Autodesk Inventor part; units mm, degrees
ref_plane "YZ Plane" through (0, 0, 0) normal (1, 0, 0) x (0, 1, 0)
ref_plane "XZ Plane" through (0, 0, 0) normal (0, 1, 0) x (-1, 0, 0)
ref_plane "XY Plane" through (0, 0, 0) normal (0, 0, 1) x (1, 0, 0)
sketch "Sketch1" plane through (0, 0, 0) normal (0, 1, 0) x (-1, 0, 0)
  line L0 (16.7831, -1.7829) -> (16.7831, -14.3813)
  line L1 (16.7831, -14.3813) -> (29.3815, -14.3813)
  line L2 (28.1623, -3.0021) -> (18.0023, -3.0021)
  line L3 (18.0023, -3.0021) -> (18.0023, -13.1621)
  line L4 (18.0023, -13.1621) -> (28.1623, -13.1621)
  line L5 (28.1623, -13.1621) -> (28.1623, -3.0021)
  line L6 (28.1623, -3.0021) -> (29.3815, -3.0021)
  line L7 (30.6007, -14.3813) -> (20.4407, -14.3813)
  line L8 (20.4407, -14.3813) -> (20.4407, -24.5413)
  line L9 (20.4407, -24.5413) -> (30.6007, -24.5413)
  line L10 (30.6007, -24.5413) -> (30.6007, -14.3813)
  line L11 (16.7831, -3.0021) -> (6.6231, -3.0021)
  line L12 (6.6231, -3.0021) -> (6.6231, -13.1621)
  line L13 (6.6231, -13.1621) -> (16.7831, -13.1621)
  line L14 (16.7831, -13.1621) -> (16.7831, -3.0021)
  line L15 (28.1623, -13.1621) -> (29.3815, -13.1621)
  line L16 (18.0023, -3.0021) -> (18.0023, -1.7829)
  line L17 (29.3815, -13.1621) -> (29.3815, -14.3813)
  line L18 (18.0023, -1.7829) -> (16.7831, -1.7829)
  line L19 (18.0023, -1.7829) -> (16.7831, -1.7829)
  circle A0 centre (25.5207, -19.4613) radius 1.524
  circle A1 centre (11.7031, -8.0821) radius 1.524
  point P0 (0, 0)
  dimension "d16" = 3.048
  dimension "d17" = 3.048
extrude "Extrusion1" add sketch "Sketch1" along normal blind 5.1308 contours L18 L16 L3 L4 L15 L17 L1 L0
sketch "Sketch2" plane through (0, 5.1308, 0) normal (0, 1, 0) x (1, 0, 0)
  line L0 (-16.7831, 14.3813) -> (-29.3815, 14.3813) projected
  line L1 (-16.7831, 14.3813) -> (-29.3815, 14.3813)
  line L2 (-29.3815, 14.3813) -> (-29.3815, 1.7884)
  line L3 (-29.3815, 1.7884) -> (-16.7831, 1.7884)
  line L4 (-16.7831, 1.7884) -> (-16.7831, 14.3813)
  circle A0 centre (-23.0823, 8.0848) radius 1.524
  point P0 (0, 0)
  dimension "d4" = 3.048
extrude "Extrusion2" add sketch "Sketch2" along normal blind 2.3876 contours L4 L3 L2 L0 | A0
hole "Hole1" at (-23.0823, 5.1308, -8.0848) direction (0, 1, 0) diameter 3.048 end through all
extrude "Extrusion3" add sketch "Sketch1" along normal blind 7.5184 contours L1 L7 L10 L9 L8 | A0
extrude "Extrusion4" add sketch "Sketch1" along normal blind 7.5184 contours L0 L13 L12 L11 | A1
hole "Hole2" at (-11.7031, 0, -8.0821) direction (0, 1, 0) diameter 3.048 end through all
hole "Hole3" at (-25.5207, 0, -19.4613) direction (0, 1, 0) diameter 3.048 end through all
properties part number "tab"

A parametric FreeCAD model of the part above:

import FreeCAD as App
import Part
import Sketcher
Q = App.Units.Quantity

doc = App.newDocument("Part")
params = doc.addObject("Spreadsheet::Sheet", "Params")
for row, (alias, value) in enumerate([
    ("sketch1_width", "0.048 in"),
    ("sketch1_width2", "0.496 in"),
    ("pad1_length", "0.202 in"),
    ("sketch2_width", "0.496 in"),
    ("pad2_length", "0.094 in"),
    ("sketch3_diameter", "0.12 in"),
    ("hole_diameter", "0.12 in"),
    ("sketch4_width", "0.4 in"),
    ("pad3_length", "0.296 in"),
    ("sketch5_width", "0.4 in"),
    ("pad4_length", "0.296 in"),
    ("sketch6_diameter", "0.12 in"),
    ("hole2_diameter", "0.12 in"),
    ("sketch7_diameter", "0.12 in"),
    ("hole3_diameter", "0.12 in"),
], start=1):
    params.set(f"A{row}", alias)
    params.set(f"B{row}", "=" + value)
    params.setAlias(f"B{row}", alias)

body = doc.addObject("PartDesign::Body", "Body")

# Sketch on XZ plane
sketch1 = doc.addObject("Sketcher::SketchObject", "Sketch")
body.addObject(sketch1)
sketch1.AttachmentSupport = (doc.XZ_Plane, [""])
sketch1.MapMode = "FlatFace"
sketch1.addGeometry([
    Part.LineSegment(App.Vector(-18.0023, -1.7829, 0), App.Vector(-16.7831, -1.7829, 0)),  # 0
    Part.LineSegment(App.Vector(-16.7831, -1.7829, 0), App.Vector(-16.7831, -14.3813, 0)),  # 1
    Part.LineSegment(App.Vector(-16.7831, -14.3813, 0), App.Vector(-29.3815, -14.3813, 0)),  # 2
    Part.LineSegment(App.Vector(-29.3815, -14.3813, 0), App.Vector(-29.3815, -13.1621, 0)),  # 3
    Part.LineSegment(App.Vector(-29.3815, -13.1621, 0), App.Vector(-18.0023, -13.1621, 0)),  # 4
    Part.LineSegment(App.Vector(-18.0023, -13.1621, 0), App.Vector(-18.0023, -1.7829, 0)),  # 5
], False)
sketch1.addConstraint([
    Sketcher.Constraint("Coincident", 0, 2, 1, 1),
    Sketcher.Constraint("Coincident", 1, 2, 2, 1),
    Sketcher.Constraint("Coincident", 2, 2, 3, 1),
    Sketcher.Constraint("Coincident", 3, 2, 4, 1),
    Sketcher.Constraint("Coincident", 4, 2, 5, 1),
    Sketcher.Constraint("Coincident", 5, 2, 0, 1),
    Sketcher.Constraint("Horizontal", 0),
    Sketcher.Constraint("Vertical", 1),
    Sketcher.Constraint("Horizontal", 2),
    Sketcher.Constraint("Vertical", 3),
    Sketcher.Constraint("Horizontal", 4),
    Sketcher.Constraint("Vertical", 5),
    Sketcher.Constraint("Equal", 2, 1),
    Sketcher.Constraint("Equal", 0, 3),
    Sketcher.Constraint("DistanceX", 0, 1, 0, 2, Q("0.048 in")),
    Sketcher.Constraint("DistanceX", 2, 2, 2, 1, Q("0.496 in")),
    Sketcher.Constraint("DistanceY", 0, 2, -1, 1, Q("0.0702 in")),
    Sketcher.Constraint("DistanceX", 0, 2, -1, 1, Q("16.783 mm")),
])
sketch1.setExpression("Constraints[14]", "Params.sketch1_width")
sketch1.setExpression("Constraints[15]", "Params.sketch1_width2")
pad1 = doc.addObject("PartDesign::Pad", "Pad")
body.addObject(pad1)
pad1.Profile = sketch1
pad1.setExpression("Length", "Params.pad1_length")
pad1.Reversed = True

# Sketch on XZ plane
sketch2 = doc.addObject("Sketcher::SketchObject", "Sketch001")
body.addObject(sketch2)
sketch2.AttachmentSupport = (doc.XZ_Plane, [""])
sketch2.MapMode = "FlatFace"
sketch2.AttachmentOffset = App.Placement(App.Vector(0, 0, -0.202 * 25.4), App.Rotation())
sketch2.addGeometry([
    Part.LineSegment(App.Vector(-16.7831, -1.7884, 0), App.Vector(-16.7831, -14.3813, 0)),
    Part.LineSegment(App.Vector(-16.7831, -14.3813, 0), App.Vector(-29.3815, -14.3813, 0)),
    Part.LineSegment(App.Vector(-29.3815, -14.3813, 0), App.Vector(-29.3815, -1.7884, 0)),
    Part.LineSegment(App.Vector(-29.3815, -1.7884, 0), App.Vector(-16.7831, -1.7884, 0)),
], False)
sketch2.addConstraint([
    Sketcher.Constraint("Coincident", 0, 2, 1, 1),
    Sketcher.Constraint("Coincident", 1, 2, 2, 1),
    Sketcher.Constraint("Coincident", 2, 2, 3, 1),
    Sketcher.Constraint("Coincident", 3, 2, 0, 1),
    Sketcher.Constraint("Vertical", 0),
    Sketcher.Constraint("Horizontal", 1),
    Sketcher.Constraint("Vertical", 2),
    Sketcher.Constraint("Horizontal", 3),
    Sketcher.Constraint("DistanceX", 1, 2, 1, 1, Q("0.496 in")),
    Sketcher.Constraint("DistanceY", 0, 2, 0, 1, Q("12.593 mm")),
    Sketcher.Constraint("DistanceY", 0, 2, -1, 1, Q("0.5662 in")),
    Sketcher.Constraint("DistanceX", 0, 2, -1, 1, Q("16.783 mm")),
])
sketch2.setExpression("Constraints[8]", "Params.sketch2_width")
pad2 = doc.addObject("PartDesign::Pad", "Pad001")
body.addObject(pad2)
pad2.Profile = sketch2
pad2.setExpression("Length", "Params.pad2_length")
pad2.Reversed = True

# Sketch on XZ plane
sketch3 = doc.addObject("Sketcher::SketchObject", "Sketch002")
body.addObject(sketch3)
sketch3.AttachmentSupport = (doc.XZ_Plane, [""])
sketch3.MapMode = "FlatFace"
sketch3.AttachmentOffset = App.Placement(App.Vector(0, 0, -0.202 * 25.4), App.Rotation())
sketch3.addGeometry(Part.Circle(App.Vector(-23.0823, -8.0848, 0), App.Vector(0, 0, 1), 1.524), False)
sketch3.addConstraint([
    Sketcher.Constraint("Diameter", 0, Q("0.12 in")),
    Sketcher.Constraint("DistanceY", 0, 3, -1, 1, Q("0.3183 in")),
    Sketcher.Constraint("DistanceX", 0, 3, -1, 1, Q("23.0823 mm")),
])
sketch3.setExpression("Constraints[0]", "Params.sketch3_diameter")
doc.recompute()
hole = doc.addObject("PartDesign::Hole", "Hole")
body.addObject(hole)
hole.Profile = sketch3
hole.ThreadType = "None"
hole.setExpression("Diameter", "Params.hole_diameter")
hole.DepthType = "ThroughAll"

# Sketch on XZ plane
sketch4 = doc.addObject("Sketcher::SketchObject", "Sketch003")
body.addObject(sketch4)
sketch4.AttachmentSupport = (doc.XZ_Plane, [""])
sketch4.MapMode = "FlatFace"
sketch4.addGeometry([
    Part.LineSegment(App.Vector(-20.4407, -14.3813, 0), App.Vector(-20.4407, -24.5413, 0)),
    Part.LineSegment(App.Vector(-20.4407, -24.5413, 0), App.Vector(-30.6007, -24.5413, 0)),
    Part.LineSegment(App.Vector(-30.6007, -24.5413, 0), App.Vector(-30.6007, -14.3813, 0)),
    Part.LineSegment(App.Vector(-30.6007, -14.3813, 0), App.Vector(-20.4407, -14.3813, 0)),
], False)
sketch4.addConstraint([
    Sketcher.Constraint("Coincident", 0, 2, 1, 1),
    Sketcher.Constraint("Coincident", 1, 2, 2, 1),
    Sketcher.Constraint("Coincident", 2, 2, 3, 1),
    Sketcher.Constraint("Coincident", 3, 2, 0, 1),
    Sketcher.Constraint("Vertical", 0),
    Sketcher.Constraint("Horizontal", 1),
    Sketcher.Constraint("Vertical", 2),
    Sketcher.Constraint("Horizontal", 3),
    Sketcher.Constraint("Equal", 3, 0),
    Sketcher.Constraint("DistanceX", 1, 2, 1, 1, Q("0.4 in")),
    Sketcher.Constraint("DistanceY", 0, 2, -1, 1, Q("0.9662 in")),
    Sketcher.Constraint("DistanceX", 0, 2, -1, 1, Q("20.4407 mm")),
])
sketch4.setExpression("Constraints[9]", "Params.sketch4_width")
pad3 = doc.addObject("PartDesign::Pad", "Pad002")
body.addObject(pad3)
pad3.Profile = sketch4
pad3.setExpression("Length", "Params.pad3_length")
pad3.Reversed = True

# Sketch on XZ plane
sketch5 = doc.addObject("Sketcher::SketchObject", "Sketch004")
body.addObject(sketch5)
sketch5.AttachmentSupport = (doc.XZ_Plane, [""])
sketch5.MapMode = "FlatFace"
sketch5.addGeometry([
    Part.LineSegment(App.Vector(-16.7831, -13.1621, 0), App.Vector(-16.7831, -3.0021, 0)),
    Part.LineSegment(App.Vector(-16.7831, -3.0021, 0), App.Vector(-6.6231, -3.0021, 0)),
    Part.LineSegment(App.Vector(-6.6231, -3.0021, 0), App.Vector(-6.6231, -13.1621, 0)),
    Part.LineSegment(App.Vector(-6.6231, -13.1621, 0), App.Vector(-16.7831, -13.1621, 0)),
], False)
sketch5.addConstraint([
    Sketcher.Constraint("Coincident", 0, 2, 1, 1),
    Sketcher.Constraint("Coincident", 1, 2, 2, 1),
    Sketcher.Constraint("Coincident", 2, 2, 3, 1),
    Sketcher.Constraint("Coincident", 3, 2, 0, 1),
    Sketcher.Constraint("Vertical", 0),
    Sketcher.Constraint("Horizontal", 1),
    Sketcher.Constraint("Vertical", 2),
    Sketcher.Constraint("Horizontal", 3),
    Sketcher.Constraint("Equal", 3, 0),
    Sketcher.Constraint("DistanceX", 1, 1, 1, 2, Q("0.4 in")),
    Sketcher.Constraint("DistanceY", 0, 2, -1, 1, Q("0.1182 in")),
    Sketcher.Constraint("DistanceX", 0, 2, -1, 1, Q("16.783 mm")),
])
sketch5.setExpression("Constraints[9]", "Params.sketch5_width")
pad4 = doc.addObject("PartDesign::Pad", "Pad003")
body.addObject(pad4)
pad4.Profile = sketch5
pad4.setExpression("Length", "Params.pad4_length")
pad4.Reversed = True

# Sketch on XZ plane
sketch6 = doc.addObject("Sketcher::SketchObject", "Sketch005")
body.addObject(sketch6)
sketch6.AttachmentSupport = (doc.XZ_Plane, [""])
sketch6.MapMode = "FlatFace"
sketch6.addGeometry(Part.Circle(App.Vector(-11.7031, -8.0821, 0), App.Vector(0, 0, 1), 1.524), False)
sketch6.addConstraint([
    Sketcher.Constraint("Diameter", 0, Q("0.12 in")),
    Sketcher.Constraint("DistanceY", 0, 3, -1, 1, Q("0.3182 in")),
    Sketcher.Constraint("DistanceX", 0, 3, -1, 1, Q("11.703 mm")),
])
sketch6.setExpression("Constraints[0]", "Params.sketch6_diameter")
doc.recompute()
hole2 = doc.addObject("PartDesign::Hole", "Hole001")
body.addObject(hole2)
hole2.Profile = sketch6
hole2.ThreadType = "None"
hole2.setExpression("Diameter", "Params.hole2_diameter")
hole2.DepthType = "ThroughAll"

# Sketch on XZ plane
sketch7 = doc.addObject("Sketcher::SketchObject", "Sketch006")
body.addObject(sketch7)
sketch7.AttachmentSupport = (doc.XZ_Plane, [""])
sketch7.MapMode = "FlatFace"
sketch7.addGeometry(Part.Circle(App.Vector(-25.5207, -19.4613, 0), App.Vector(0, 0, 1), 1.524), False)
sketch7.addConstraint([
    Sketcher.Constraint("Diameter", 0, Q("0.12 in")),
    Sketcher.Constraint("DistanceY", 0, 3, -1, 1, Q("0.7662 in")),
    Sketcher.Constraint("DistanceX", 0, 3, -1, 1, Q("25.5207 mm")),
])
sketch7.setExpression("Constraints[0]", "Params.sketch7_diameter")
doc.recompute()
hole3 = doc.addObject("PartDesign::Hole", "Hole002")
body.addObject(hole3)
hole3.Profile = sketch7
hole3.ThreadType = "None"
hole3.setExpression("Diameter", "Params.hole3_diameter")
hole3.DepthType = "ThroughAll"

doc.recompute()
